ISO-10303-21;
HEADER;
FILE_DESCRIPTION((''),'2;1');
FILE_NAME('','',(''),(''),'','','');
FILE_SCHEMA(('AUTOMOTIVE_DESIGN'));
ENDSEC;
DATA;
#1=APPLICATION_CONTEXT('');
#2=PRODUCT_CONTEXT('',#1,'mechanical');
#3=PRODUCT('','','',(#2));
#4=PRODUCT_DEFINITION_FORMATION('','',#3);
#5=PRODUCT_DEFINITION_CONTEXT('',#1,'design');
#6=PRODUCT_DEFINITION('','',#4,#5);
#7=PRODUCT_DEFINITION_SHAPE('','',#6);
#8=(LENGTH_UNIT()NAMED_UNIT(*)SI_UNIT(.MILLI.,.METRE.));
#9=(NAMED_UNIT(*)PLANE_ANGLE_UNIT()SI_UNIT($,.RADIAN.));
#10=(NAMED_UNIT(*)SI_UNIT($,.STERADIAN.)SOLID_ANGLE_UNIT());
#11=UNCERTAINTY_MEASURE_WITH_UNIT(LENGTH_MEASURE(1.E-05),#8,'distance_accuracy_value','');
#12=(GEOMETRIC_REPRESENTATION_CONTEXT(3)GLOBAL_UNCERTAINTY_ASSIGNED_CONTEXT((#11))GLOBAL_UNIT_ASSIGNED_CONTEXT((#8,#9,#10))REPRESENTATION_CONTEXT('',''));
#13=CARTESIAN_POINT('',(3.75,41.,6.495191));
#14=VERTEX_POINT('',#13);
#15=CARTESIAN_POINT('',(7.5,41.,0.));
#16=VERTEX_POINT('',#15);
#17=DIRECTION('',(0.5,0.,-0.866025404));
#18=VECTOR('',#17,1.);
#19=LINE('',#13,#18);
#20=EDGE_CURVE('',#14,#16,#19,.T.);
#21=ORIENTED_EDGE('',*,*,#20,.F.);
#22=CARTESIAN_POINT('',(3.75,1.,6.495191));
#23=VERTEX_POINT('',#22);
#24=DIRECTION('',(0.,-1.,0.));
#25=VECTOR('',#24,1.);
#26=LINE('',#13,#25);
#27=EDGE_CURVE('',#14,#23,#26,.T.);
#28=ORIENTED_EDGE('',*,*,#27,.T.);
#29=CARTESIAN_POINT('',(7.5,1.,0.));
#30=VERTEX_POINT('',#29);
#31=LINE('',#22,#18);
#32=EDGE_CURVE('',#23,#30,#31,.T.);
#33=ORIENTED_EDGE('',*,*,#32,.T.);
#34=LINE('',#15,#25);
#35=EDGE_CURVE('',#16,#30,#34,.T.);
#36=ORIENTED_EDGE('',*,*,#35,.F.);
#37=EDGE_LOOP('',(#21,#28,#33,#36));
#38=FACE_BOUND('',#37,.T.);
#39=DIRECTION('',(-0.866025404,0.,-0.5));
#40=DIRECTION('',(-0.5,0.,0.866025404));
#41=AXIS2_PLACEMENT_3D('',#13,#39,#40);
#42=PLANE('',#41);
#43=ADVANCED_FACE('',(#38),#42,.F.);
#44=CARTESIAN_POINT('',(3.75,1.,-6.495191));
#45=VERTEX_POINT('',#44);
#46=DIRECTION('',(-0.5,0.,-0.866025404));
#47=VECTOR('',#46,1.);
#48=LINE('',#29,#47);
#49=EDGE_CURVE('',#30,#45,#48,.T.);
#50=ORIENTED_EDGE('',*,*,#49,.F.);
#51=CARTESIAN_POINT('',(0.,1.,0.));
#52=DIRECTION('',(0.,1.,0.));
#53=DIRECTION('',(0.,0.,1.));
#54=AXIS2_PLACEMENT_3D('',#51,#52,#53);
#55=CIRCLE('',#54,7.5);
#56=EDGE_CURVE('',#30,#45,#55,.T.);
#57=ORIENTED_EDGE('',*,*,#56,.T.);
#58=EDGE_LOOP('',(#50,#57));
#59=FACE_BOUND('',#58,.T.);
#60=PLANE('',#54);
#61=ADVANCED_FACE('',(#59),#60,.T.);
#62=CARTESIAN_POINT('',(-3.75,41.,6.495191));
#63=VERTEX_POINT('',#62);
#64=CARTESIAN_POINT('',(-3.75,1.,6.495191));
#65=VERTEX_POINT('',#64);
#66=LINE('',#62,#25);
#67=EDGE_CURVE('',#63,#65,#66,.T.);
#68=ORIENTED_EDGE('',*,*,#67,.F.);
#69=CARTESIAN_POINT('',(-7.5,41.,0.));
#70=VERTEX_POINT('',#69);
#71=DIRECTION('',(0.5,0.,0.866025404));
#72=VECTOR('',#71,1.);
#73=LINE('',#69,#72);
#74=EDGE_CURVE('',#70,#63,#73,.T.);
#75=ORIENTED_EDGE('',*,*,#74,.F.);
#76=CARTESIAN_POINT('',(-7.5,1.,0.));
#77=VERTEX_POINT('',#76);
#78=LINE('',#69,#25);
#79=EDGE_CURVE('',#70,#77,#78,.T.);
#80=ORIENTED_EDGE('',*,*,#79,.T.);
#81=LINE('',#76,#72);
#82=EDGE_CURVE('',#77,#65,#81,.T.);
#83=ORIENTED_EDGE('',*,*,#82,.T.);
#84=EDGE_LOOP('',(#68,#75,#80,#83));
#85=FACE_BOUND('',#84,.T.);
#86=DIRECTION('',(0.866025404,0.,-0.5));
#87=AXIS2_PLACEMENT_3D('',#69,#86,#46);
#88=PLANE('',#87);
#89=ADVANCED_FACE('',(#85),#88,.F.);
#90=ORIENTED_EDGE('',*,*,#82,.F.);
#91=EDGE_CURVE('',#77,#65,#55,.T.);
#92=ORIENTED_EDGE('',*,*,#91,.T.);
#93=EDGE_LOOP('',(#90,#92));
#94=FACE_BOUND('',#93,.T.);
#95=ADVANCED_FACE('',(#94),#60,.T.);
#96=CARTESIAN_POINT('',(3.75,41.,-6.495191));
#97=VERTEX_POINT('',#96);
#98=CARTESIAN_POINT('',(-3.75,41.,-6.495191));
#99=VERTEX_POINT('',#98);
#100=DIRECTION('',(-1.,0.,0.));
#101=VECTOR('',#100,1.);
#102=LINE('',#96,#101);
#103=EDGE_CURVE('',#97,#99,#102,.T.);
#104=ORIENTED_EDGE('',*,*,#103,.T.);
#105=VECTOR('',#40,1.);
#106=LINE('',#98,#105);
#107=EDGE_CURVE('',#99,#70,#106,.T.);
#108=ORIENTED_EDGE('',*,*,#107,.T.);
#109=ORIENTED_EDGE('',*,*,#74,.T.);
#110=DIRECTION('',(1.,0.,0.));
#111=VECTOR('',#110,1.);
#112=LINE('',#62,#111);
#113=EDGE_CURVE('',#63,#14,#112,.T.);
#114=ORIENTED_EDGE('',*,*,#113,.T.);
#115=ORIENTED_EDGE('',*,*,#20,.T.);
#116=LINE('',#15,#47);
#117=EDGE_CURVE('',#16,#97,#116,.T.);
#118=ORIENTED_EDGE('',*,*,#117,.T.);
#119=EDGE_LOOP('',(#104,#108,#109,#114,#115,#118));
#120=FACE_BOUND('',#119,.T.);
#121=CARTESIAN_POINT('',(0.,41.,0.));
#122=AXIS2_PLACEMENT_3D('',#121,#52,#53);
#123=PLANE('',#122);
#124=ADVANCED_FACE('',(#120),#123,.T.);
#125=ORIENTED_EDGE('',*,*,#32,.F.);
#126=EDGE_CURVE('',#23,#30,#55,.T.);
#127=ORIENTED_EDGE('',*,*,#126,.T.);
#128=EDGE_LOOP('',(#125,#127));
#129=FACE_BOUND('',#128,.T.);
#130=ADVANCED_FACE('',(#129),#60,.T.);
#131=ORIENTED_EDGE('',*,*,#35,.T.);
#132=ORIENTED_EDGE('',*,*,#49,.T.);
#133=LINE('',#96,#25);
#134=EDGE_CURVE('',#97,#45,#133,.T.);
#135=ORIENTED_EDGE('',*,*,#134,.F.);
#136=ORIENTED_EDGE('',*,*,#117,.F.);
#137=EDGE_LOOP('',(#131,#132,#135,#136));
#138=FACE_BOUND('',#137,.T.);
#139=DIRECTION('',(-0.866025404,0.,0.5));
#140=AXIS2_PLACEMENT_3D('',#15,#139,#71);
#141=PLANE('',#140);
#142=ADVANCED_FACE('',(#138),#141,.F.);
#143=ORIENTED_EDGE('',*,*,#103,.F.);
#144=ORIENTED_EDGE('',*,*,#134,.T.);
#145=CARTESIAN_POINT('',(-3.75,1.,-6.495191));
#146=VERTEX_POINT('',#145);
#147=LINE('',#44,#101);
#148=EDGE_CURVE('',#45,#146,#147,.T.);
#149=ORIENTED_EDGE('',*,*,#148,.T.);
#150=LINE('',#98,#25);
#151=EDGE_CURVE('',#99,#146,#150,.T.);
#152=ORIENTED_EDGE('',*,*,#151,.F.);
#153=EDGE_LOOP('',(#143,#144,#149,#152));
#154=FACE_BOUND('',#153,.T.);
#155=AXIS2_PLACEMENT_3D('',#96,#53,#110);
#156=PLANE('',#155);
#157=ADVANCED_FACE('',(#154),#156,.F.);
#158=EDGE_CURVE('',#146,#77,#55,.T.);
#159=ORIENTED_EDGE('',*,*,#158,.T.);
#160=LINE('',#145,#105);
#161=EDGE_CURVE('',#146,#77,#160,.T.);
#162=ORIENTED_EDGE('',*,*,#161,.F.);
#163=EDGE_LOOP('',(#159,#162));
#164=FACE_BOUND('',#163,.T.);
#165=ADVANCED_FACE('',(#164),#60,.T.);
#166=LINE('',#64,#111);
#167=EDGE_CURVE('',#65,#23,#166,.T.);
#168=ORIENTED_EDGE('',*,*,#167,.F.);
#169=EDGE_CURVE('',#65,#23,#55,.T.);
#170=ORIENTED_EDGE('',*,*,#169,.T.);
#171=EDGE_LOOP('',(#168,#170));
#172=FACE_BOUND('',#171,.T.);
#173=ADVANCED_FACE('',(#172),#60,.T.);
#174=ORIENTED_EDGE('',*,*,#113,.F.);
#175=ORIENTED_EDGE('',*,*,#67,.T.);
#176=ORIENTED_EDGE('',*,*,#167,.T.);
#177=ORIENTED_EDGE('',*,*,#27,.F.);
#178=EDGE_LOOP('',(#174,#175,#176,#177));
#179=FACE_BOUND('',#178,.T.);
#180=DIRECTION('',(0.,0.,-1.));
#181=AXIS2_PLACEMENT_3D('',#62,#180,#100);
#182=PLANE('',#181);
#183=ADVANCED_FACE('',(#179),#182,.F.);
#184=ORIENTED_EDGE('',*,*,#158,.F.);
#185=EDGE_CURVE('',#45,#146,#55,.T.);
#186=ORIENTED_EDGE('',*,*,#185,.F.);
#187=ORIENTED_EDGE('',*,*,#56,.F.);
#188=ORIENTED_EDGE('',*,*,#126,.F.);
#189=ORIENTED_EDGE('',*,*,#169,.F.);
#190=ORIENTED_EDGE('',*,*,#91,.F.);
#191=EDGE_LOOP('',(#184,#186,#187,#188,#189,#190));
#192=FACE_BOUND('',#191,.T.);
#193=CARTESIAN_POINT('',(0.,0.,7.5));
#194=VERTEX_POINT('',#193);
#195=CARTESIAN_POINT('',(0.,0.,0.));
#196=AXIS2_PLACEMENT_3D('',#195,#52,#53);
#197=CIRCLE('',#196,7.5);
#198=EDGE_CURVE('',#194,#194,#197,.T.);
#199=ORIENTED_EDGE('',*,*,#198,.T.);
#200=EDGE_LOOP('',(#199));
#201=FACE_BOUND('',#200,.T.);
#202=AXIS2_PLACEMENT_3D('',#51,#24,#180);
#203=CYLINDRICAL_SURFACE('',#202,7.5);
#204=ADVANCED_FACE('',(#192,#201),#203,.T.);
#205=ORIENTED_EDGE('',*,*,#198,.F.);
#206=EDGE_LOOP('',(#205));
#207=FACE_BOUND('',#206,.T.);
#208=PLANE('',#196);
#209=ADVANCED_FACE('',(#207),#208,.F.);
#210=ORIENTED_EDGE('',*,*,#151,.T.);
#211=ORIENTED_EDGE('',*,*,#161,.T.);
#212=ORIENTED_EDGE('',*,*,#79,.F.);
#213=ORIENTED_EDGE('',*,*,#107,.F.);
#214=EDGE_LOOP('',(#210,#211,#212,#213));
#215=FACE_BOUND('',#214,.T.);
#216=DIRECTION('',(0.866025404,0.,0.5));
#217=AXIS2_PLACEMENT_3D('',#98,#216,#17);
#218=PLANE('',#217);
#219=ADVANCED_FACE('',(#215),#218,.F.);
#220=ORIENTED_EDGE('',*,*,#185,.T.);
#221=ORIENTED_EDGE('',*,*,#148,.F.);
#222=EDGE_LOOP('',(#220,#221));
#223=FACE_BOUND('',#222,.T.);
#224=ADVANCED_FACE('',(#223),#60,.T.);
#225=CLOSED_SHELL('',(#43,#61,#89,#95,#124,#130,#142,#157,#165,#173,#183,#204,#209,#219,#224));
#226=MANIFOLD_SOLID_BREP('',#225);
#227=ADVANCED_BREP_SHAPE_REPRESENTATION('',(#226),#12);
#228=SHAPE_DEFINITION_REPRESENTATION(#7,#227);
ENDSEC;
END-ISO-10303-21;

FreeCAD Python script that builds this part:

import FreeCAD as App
import Part
import Sketcher
from FreeCAD import Vector
Q = App.Units.Quantity

doc = App.newDocument("Part")
body = doc.addObject("PartDesign::Body", "Body")

# Sketch on XZ plane
sketch1 = body.newObject("Sketcher::SketchObject", "Sketch")
sketch1.AttachmentSupport = (doc.getObject("XZ_Plane"), [""])
sketch1.MapMode = "FlatFace"
sketch1.addGeometry(Part.Circle(Vector(0, 0, 0), Vector(0, 0, 1), 7.5), False)
sketch1.addConstraint(Sketcher.Constraint("Coincident", 0, 3, -1, 1))
sketch1.addConstraint(Sketcher.Constraint("Diameter", 0, Q("15 mm")))
pad1 = body.newObject("PartDesign::Pad", "Pad")
pad1.Profile = sketch1
pad1.Length = 1
pad1.Reversed = True

# Sketch on XZ plane
sketch2 = body.newObject("Sketcher::SketchObject", "Sketch001")
sketch2.AttachmentSupport = (doc.getObject("XZ_Plane"), [""])
sketch2.MapMode = "FlatFace"
sketch2.AttachmentOffset = App.Placement(Vector(0, 0, -1), App.Rotation())
sketch2.addGeometry(Part.LineSegment(Vector(7.5, 0, 0), Vector(3.75, -6.495191, 0)), False)
sketch2.addGeometry(Part.LineSegment(Vector(3.75, -6.495191, 0), Vector(-3.75, -6.495191, 0)), False)
sketch2.addGeometry(Part.LineSegment(Vector(-3.75, -6.495191, 0), Vector(-7.5, 0, 0)), False)
sketch2.addGeometry(Part.LineSegment(Vector(-7.5, 0, 0), Vector(-3.75, 6.495191, 0)), False)
sketch2.addGeometry(Part.LineSegment(Vector(-3.75, 6.495191, 0), Vector(3.75, 6.495191, 0)), False)
sketch2.addGeometry(Part.LineSegment(Vector(3.75, 6.495191, 0), Vector(7.5, 0, 0)), False)
sketch2.addConstraint(Sketcher.Constraint("Coincident", 0, 2, 1, 1))
sketch2.addConstraint(Sketcher.Constraint("Coincident", 1, 2, 2, 1))
sketch2.addConstraint(Sketcher.Constraint("Coincident", 2, 2, 3, 1))
sketch2.addConstraint(Sketcher.Constraint("Coincident", 3, 2, 4, 1))
sketch2.addConstraint(Sketcher.Constraint("Coincident", 4, 2, 5, 1))
sketch2.addConstraint(Sketcher.Constraint("Coincident", 5, 2, 0, 1))
sketch2.addConstraint(Sketcher.Constraint("Horizontal", 1))
sketch2.addConstraint(Sketcher.Constraint("Horizontal", 4))
sketch2.addConstraint(Sketcher.Constraint("Symmetric", 0, 2, 3, 2, -1, 1))
sketch2.addConstraint(Sketcher.Constraint("Symmetric", 2, 2, 5, 2, -1, 1))
sketch2.addConstraint(Sketcher.Constraint("PointOnObject", 2, 2, -1))
sketch2.addConstraint(Sketcher.Constraint("Parallel", 2, 5))
sketch2.addConstraint(Sketcher.Constraint("Vertical", 1, 2, 3, 2))
sketch2.addConstraint(Sketcher.Constraint("Angle", 0, Q("-120 deg")))
sketch2.addConstraint(Sketcher.Constraint("DistanceX", 1, 2, 1, 1, Q("7.5 mm")))
sketch2.addConstraint(Sketcher.Constraint("DistanceX", 2, 2, 5, 2, Q("15 mm")))
pad2 = body.newObject("PartDesign::Pad", "Pad001")
pad2.Profile = sketch2
pad2.Length = 40
pad2.Reversed = True

doc.recompute()
